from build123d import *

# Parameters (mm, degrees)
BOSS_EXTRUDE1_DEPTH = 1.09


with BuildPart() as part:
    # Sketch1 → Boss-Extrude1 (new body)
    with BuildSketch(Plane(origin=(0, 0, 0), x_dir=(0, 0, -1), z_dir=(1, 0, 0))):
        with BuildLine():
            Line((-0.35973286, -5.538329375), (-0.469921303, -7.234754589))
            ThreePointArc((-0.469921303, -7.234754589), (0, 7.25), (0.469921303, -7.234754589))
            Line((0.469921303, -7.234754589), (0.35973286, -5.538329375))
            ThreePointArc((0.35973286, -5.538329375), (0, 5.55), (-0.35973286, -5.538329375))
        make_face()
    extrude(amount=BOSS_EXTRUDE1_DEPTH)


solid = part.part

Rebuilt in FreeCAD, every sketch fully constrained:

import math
import FreeCAD as App
import Part
import Sketcher

doc = App.newDocument("Part")
body = doc.addObject("PartDesign::Body", "Body")

sketch1 = body.newObject("Sketcher::SketchObject", "Sketch")
sketch1.AttachmentSupport = (doc.getObject("YZ_Plane"), [""])
sketch1.MapMode = "FlatFace"
sketch1.addGeometry(Part.LineSegment(App.Vector(-7.2, 0.5, 0), App.Vector(-5.5, 0.4, 0)), False)
sketch1.addGeometry(Part.ArcOfCircle(Part.Circle(App.Vector(0, 0, 0), App.Vector(0, 0, 1), 5.5), math.radians(-176), math.radians(176)), False)
sketch1.addGeometry(Part.LineSegment(App.Vector(-5.5, -0.4, 0), App.Vector(-7.2, -0.5, 0)), False)
sketch1.addGeometry(Part.ArcOfCircle(Part.Circle(App.Vector(0, 0, 0), App.Vector(0, 0, 1), 7.2), math.radians(-176), math.radians(176)), False)
sketch1.addConstraint(Sketcher.Constraint("Coincident", 0, 2, 1, 2))
sketch1.addConstraint(Sketcher.Constraint("Coincident", 1, 1, 2, 1))
sketch1.addConstraint(Sketcher.Constraint("Coincident", 2, 2, 3, 1))
sketch1.addConstraint(Sketcher.Constraint("Coincident", 3, 2, 0, 1))
sketch1.addConstraint(Sketcher.Constraint("Coincident", 1, 3, -1, 1))
sketch1.addConstraint(Sketcher.Constraint("Coincident", 3, 3, -1, 1))
sketch1.addConstraint(Sketcher.Constraint("Vertical", 0, 2, 1, 1))
sketch1.addConstraint(Sketcher.Constraint("Vertical", 2, 2, 3, 2))
sketch1.addConstraint(Sketcher.Constraint("Radius", 1, 5.55))
sketch1.addConstraint(Sketcher.Constraint("Radius", 3, 7.25))
sketch1.addConstraint(Sketcher.Constraint("DistanceX", 0, 2, -1, 1, 5.538329))
sketch1.addConstraint(Sketcher.Constraint("DistanceY", 2, 2, -1, 1, 0.469921))
pad1 = body.newObject("PartDesign::Pad", "Pad")
pad1.Profile = sketch1
pad1.Length = 1.09

doc.recompute()
